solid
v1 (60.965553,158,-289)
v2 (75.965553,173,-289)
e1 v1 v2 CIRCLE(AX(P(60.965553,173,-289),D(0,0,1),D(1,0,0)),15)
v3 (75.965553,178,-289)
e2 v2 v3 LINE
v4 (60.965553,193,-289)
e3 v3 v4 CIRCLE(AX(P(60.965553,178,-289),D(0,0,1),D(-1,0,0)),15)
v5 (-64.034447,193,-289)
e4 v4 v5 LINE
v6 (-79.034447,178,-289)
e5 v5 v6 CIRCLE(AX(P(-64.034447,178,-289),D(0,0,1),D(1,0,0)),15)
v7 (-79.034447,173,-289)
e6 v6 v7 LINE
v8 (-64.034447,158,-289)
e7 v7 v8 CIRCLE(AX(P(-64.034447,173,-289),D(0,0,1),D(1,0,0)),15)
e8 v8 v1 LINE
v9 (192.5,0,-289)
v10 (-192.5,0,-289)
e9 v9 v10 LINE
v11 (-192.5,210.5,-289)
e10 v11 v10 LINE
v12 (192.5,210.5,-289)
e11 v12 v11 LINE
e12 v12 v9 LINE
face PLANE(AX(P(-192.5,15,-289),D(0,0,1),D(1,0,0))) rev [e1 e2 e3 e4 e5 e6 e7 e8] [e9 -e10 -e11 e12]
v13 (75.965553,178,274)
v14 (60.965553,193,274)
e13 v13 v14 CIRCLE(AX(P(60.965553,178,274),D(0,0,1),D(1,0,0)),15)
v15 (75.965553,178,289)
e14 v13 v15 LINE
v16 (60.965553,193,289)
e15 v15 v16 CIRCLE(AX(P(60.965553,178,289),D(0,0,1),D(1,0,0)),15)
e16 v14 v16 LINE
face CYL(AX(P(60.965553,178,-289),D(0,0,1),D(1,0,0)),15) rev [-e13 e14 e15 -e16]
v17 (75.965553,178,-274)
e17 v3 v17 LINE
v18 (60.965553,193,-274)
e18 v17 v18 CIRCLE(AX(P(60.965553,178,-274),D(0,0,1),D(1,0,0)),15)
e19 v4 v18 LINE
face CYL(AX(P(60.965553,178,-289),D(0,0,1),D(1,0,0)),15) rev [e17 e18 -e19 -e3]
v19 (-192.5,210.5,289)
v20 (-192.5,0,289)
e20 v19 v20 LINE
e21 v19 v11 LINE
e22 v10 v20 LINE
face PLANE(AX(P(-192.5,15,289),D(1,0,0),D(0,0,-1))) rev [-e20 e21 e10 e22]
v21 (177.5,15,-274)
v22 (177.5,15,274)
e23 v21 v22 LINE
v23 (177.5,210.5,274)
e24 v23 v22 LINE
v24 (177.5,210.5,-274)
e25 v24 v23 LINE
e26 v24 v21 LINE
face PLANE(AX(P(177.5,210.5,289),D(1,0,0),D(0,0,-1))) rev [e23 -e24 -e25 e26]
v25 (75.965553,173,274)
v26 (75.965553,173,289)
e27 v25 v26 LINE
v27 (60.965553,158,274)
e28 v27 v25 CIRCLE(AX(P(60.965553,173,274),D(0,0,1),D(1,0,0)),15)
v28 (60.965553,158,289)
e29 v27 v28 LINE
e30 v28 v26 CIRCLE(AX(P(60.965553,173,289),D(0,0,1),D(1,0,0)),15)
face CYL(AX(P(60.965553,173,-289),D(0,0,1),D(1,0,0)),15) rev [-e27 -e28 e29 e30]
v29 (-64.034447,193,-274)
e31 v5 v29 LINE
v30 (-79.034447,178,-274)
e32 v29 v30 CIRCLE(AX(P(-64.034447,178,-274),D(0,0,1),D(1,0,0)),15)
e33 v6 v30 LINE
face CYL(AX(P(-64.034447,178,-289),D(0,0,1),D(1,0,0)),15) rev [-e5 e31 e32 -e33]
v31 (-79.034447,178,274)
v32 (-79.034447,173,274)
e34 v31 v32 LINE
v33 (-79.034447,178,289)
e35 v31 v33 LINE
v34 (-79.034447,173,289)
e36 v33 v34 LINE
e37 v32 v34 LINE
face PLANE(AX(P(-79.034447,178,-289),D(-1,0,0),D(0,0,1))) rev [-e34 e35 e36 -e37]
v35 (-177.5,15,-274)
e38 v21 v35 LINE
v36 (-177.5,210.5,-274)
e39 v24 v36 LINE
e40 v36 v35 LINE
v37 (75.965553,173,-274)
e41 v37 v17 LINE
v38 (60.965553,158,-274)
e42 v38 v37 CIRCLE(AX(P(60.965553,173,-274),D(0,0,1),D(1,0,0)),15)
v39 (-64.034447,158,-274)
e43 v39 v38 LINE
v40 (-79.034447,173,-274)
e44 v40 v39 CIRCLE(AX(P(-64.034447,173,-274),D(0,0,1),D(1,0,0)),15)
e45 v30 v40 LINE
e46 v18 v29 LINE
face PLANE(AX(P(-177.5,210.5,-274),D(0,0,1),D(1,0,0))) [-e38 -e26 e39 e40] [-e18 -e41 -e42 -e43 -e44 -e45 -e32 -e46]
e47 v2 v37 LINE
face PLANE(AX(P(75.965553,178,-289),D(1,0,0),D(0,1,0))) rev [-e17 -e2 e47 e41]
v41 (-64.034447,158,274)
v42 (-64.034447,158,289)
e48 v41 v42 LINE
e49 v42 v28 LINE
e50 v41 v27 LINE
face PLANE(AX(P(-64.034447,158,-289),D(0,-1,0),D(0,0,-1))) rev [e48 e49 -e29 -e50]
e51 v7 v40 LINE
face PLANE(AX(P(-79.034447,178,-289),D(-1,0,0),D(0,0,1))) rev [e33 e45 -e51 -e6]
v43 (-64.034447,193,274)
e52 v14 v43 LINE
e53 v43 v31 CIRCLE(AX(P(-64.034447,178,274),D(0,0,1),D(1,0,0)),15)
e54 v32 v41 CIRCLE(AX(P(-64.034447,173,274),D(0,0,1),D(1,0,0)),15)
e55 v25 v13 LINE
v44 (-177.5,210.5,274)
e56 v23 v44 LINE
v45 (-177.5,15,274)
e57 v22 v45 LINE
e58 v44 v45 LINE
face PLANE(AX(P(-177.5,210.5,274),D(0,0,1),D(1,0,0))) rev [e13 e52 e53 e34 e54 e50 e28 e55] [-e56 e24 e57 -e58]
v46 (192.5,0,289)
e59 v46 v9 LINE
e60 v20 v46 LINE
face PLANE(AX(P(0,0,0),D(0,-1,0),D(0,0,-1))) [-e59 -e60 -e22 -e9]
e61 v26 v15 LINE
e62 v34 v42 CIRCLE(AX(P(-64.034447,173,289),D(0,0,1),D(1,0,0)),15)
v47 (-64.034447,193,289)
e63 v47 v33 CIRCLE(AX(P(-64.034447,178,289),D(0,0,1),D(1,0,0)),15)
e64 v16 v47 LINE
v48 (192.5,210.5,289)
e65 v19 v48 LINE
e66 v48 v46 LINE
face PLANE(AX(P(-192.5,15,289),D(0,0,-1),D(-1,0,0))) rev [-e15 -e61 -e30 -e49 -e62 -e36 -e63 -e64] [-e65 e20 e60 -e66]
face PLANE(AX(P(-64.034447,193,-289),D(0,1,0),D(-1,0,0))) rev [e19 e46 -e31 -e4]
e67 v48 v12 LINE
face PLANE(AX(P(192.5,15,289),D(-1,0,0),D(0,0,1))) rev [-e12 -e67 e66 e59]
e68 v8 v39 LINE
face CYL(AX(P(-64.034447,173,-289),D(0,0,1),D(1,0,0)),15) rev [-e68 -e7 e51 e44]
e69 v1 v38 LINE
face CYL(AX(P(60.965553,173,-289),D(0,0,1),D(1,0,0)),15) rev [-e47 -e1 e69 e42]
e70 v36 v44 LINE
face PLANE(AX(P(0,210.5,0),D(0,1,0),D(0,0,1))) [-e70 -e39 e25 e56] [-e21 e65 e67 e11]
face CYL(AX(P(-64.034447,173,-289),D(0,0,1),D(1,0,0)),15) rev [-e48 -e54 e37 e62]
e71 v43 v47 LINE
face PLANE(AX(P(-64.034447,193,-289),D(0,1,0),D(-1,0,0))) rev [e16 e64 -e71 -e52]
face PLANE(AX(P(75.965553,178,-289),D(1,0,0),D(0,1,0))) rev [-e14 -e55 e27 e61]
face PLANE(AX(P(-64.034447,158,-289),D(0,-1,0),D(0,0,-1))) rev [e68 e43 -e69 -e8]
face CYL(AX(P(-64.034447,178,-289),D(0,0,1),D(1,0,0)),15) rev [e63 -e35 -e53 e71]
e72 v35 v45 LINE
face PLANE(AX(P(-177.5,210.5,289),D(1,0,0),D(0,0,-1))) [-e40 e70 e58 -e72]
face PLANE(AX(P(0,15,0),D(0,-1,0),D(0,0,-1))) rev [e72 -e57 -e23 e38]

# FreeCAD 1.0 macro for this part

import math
import FreeCAD as App
import Part
import Sketcher
from FreeCAD import Vector
Q = App.Units.Quantity

doc = App.newDocument("Part")
body = doc.addObject("PartDesign::Body", "Body")

# Sketch on XZ plane
sketch1 = body.newObject("Sketcher::SketchObject", "Sketch")
sketch1.AttachmentSupport = (doc.getObject("XZ_Plane"), [""])
sketch1.MapMode = "FlatFace"
sketch1.addGeometry([
    Part.LineSegment(Vector(-192, -289, 0), Vector(-192, 289, 0)),
    Part.LineSegment(Vector(-192, 289, 0), Vector(192, 289, 0)),
    Part.LineSegment(Vector(192, 289, 0), Vector(192, -289, 0)),
    Part.LineSegment(Vector(192, -289, 0), Vector(-192, -289, 0)),
], False)
sketch1.addConstraint([
    Sketcher.Constraint("Coincident", 0, 2, 1, 1),
    Sketcher.Constraint("Coincident", 1, 2, 2, 1),
    Sketcher.Constraint("Coincident", 2, 2, 3, 1),
    Sketcher.Constraint("Coincident", 3, 2, 0, 1),
    Sketcher.Constraint("Vertical", 0),
    Sketcher.Constraint("Horizontal", 1),
    Sketcher.Constraint("Vertical", 2),
    Sketcher.Constraint("Horizontal", 3),
    Sketcher.Constraint("Symmetric", 0, 2, 2, 2, -1, 1),
    Sketcher.Constraint("DistanceX", 1, 1, 1, 2, Q("385 mm")),
    Sketcher.Constraint("DistanceY", 0, 1, 0, 2, Q("578 mm")),
])
pad1 = body.newObject("PartDesign::Pad", "Pad")
pad1.Profile = sketch1
pad1.Length = 15
pad1.Reversed = True

# Sketch on XZ plane
sketch2 = body.newObject("Sketcher::SketchObject", "Sketch001")
sketch2.AttachmentSupport = (doc.getObject("XZ_Plane"), [""])
sketch2.MapMode = "FlatFace"
sketch2.AttachmentOffset = App.Placement(Vector(0, 0, -15), App.Rotation())
sketch2.addGeometry([
    Part.LineSegment(Vector(178, -289, 0), Vector(178, 289, 0)),
    Part.LineSegment(Vector(178, 289, 0), Vector(192, 289, 0)),
    Part.LineSegment(Vector(192, 289, 0), Vector(192, -289, 0)),
    Part.LineSegment(Vector(192, -289, 0), Vector(178, -289, 0)),
], False)
sketch2.addConstraint([
    Sketcher.Constraint("Coincident", 0, 2, 1, 1),
    Sketcher.Constraint("Coincident", 1, 2, 2, 1),
    Sketcher.Constraint("Coincident", 2, 2, 3, 1),
    Sketcher.Constraint("Coincident", 3, 2, 0, 1),
    Sketcher.Constraint("Vertical", 0),
    Sketcher.Constraint("Horizontal", 1),
    Sketcher.Constraint("Vertical", 2),
    Sketcher.Constraint("Horizontal", 3),
    Sketcher.Constraint("DistanceX", 1, 1, 1, 2, Q("15 mm")),
    Sketcher.Constraint("DistanceY", 0, 1, 0, 2, Q("578 mm")),
    Sketcher.Constraint("DistanceY", -1, 1, 0, 2, Q("289 mm")),
    Sketcher.Constraint("DistanceX", -1, 1, 0, 2, Q("177.5 mm")),
])
pad2 = body.newObject("PartDesign::Pad", "Pad001")
pad2.Profile = sketch2
pad2.Length = 195.5
pad2.Reversed = True
doc.recompute()

mirrored = body.newObject("PartDesign::Mirrored", "Mirrored")
mirrored.Originals = [pad2]
mirrored.MirrorPlane = (doc.getObject("YZ_Plane"), [""])
body.Tip = mirrored

# Sketch on XZ plane
sketch3 = body.newObject("Sketcher::SketchObject", "Sketch002")
sketch3.AttachmentSupport = (doc.getObject("XZ_Plane"), [""])
sketch3.MapMode = "FlatFace"
sketch3.AttachmentOffset = App.Placement(Vector(0, 0, -15), App.Rotation())
sketch3.addGeometry([
    Part.LineSegment(Vector(-178, 274, 0), Vector(-178, 289, 0)),
    Part.LineSegment(Vector(-178, 289, 0), Vector(178, 289, 0)),
    Part.LineSegment(Vector(178, 289, 0), Vector(178, 274, 0)),
    Part.LineSegment(Vector(178, 274, 0), Vector(-178, 274, 0)),
], False)
sketch3.addConstraint([
    Sketcher.Constraint("Coincident", 0, 2, 1, 1),
    Sketcher.Constraint("Coincident", 1, 2, 2, 1),
    Sketcher.Constraint("Coincident", 2, 2, 3, 1),
    Sketcher.Constraint("Coincident", 3, 2, 0, 1),
    Sketcher.Constraint("Vertical", 0),
    Sketcher.Constraint("Horizontal", 1),
    Sketcher.Constraint("Vertical", 2),
    Sketcher.Constraint("Horizontal", 3),
    Sketcher.Constraint("DistanceX", 1, 1, 1, 2, Q("355 mm")),
    Sketcher.Constraint("DistanceY", 0, 1, 0, 2, Q("15 mm")),
    Sketcher.Constraint("DistanceY", -1, 1, 0, 2, Q("289 mm")),
    Sketcher.Constraint("DistanceX", 0, 2, -1, 1, Q("177.5 mm")),
])
pad3 = body.newObject("PartDesign::Pad", "Pad002")
pad3.Profile = sketch3
pad3.Length = 195.5
pad3.Reversed = True
doc.recompute()

mirrored2 = body.newObject("PartDesign::Mirrored", "Mirrored001")
mirrored2.Originals = [pad3]
mirrored2.MirrorPlane = (doc.getObject("XY_Plane"), [""])
body.Tip = mirrored2

# Sketch on XY plane
sketch4 = body.newObject("Sketcher::SketchObject", "Sketch003")
sketch4.AttachmentSupport = (doc.getObject("XY_Plane"), [""])
sketch4.MapMode = "FlatFace"
sketch4.AttachmentOffset = App.Placement(Vector(0, 0, 289), App.Rotation())
sketch4.addGeometry([
    Part.LineSegment(Vector(61, 193, 0), Vector(-64, 193, 0)),  # 0
    Part.ArcOfCircle(Part.Circle(Vector(-64, 178, 0), Vector(0, 0, 1), 15), math.radians(90), math.radians(180)),  # 1
    Part.LineSegment(Vector(-79, 178, 0), Vector(-79, 173, 0)),  # 2
    Part.ArcOfCircle(Part.Circle(Vector(-64, 173, 0), Vector(0, 0, 1), 15), math.radians(-180), math.radians(-90)),  # 3
    Part.LineSegment(Vector(-64, 158, 0), Vector(61, 158, 0)),  # 4
    Part.ArcOfCircle(Part.Circle(Vector(61, 173, 0), Vector(0, 0, 1), 15), math.radians(-90), math.radians(0)),  # 5
    Part.LineSegment(Vector(76, 173, 0), Vector(76, 178, 0)),  # 6
    Part.ArcOfCircle(Part.Circle(Vector(61, 178, 0), Vector(0, 0, 1), 15), math.radians(0), math.radians(90)),  # 7
], False)
sketch4.addConstraint([
    Sketcher.Constraint("Tangent", 0, 2, 1, 1),
    Sketcher.Constraint("Tangent", 1, 2, 2, 1),
    Sketcher.Constraint("Tangent", 2, 2, 3, 1),
    Sketcher.Constraint("Tangent", 3, 2, 4, 1),
    Sketcher.Constraint("Tangent", 4, 2, 5, 1),
    Sketcher.Constraint("Tangent", 5, 2, 6, 1),
    Sketcher.Constraint("Tangent", 6, 2, 7, 1),
    Sketcher.Constraint("Tangent", 7, 2, 0, 1),
    Sketcher.Constraint("Horizontal", 0),
    Sketcher.Constraint("Vertical", 2),
    Sketcher.Constraint("Horizontal", 4),
    Sketcher.Constraint("Vertical", 6),
    Sketcher.Constraint("Equal", 1, 3),
    Sketcher.Constraint("Equal", 3, 5),
    Sketcher.Constraint("Equal", 5, 7),
    Sketcher.Constraint("Radius", 1, Q("15 mm")),
    Sketcher.Constraint("DistanceX", 0, 2, 0, 1, Q("125 mm")),
    Sketcher.Constraint("DistanceY", 2, 2, 2, 1, Q("5 mm")),
    Sketcher.Constraint("DistanceY", -1, 1, 1, 3, Q("178 mm")),
    Sketcher.Constraint("DistanceX", 1, 3, -1, 1, Q("64.034447 mm")),
])
pocket1 = body.newObject("PartDesign::Pocket", "Pocket")
pocket1.Profile = sketch4
pocket1.Type = "ThroughAll"
pocket1.Midplane = True

doc.recompute()
